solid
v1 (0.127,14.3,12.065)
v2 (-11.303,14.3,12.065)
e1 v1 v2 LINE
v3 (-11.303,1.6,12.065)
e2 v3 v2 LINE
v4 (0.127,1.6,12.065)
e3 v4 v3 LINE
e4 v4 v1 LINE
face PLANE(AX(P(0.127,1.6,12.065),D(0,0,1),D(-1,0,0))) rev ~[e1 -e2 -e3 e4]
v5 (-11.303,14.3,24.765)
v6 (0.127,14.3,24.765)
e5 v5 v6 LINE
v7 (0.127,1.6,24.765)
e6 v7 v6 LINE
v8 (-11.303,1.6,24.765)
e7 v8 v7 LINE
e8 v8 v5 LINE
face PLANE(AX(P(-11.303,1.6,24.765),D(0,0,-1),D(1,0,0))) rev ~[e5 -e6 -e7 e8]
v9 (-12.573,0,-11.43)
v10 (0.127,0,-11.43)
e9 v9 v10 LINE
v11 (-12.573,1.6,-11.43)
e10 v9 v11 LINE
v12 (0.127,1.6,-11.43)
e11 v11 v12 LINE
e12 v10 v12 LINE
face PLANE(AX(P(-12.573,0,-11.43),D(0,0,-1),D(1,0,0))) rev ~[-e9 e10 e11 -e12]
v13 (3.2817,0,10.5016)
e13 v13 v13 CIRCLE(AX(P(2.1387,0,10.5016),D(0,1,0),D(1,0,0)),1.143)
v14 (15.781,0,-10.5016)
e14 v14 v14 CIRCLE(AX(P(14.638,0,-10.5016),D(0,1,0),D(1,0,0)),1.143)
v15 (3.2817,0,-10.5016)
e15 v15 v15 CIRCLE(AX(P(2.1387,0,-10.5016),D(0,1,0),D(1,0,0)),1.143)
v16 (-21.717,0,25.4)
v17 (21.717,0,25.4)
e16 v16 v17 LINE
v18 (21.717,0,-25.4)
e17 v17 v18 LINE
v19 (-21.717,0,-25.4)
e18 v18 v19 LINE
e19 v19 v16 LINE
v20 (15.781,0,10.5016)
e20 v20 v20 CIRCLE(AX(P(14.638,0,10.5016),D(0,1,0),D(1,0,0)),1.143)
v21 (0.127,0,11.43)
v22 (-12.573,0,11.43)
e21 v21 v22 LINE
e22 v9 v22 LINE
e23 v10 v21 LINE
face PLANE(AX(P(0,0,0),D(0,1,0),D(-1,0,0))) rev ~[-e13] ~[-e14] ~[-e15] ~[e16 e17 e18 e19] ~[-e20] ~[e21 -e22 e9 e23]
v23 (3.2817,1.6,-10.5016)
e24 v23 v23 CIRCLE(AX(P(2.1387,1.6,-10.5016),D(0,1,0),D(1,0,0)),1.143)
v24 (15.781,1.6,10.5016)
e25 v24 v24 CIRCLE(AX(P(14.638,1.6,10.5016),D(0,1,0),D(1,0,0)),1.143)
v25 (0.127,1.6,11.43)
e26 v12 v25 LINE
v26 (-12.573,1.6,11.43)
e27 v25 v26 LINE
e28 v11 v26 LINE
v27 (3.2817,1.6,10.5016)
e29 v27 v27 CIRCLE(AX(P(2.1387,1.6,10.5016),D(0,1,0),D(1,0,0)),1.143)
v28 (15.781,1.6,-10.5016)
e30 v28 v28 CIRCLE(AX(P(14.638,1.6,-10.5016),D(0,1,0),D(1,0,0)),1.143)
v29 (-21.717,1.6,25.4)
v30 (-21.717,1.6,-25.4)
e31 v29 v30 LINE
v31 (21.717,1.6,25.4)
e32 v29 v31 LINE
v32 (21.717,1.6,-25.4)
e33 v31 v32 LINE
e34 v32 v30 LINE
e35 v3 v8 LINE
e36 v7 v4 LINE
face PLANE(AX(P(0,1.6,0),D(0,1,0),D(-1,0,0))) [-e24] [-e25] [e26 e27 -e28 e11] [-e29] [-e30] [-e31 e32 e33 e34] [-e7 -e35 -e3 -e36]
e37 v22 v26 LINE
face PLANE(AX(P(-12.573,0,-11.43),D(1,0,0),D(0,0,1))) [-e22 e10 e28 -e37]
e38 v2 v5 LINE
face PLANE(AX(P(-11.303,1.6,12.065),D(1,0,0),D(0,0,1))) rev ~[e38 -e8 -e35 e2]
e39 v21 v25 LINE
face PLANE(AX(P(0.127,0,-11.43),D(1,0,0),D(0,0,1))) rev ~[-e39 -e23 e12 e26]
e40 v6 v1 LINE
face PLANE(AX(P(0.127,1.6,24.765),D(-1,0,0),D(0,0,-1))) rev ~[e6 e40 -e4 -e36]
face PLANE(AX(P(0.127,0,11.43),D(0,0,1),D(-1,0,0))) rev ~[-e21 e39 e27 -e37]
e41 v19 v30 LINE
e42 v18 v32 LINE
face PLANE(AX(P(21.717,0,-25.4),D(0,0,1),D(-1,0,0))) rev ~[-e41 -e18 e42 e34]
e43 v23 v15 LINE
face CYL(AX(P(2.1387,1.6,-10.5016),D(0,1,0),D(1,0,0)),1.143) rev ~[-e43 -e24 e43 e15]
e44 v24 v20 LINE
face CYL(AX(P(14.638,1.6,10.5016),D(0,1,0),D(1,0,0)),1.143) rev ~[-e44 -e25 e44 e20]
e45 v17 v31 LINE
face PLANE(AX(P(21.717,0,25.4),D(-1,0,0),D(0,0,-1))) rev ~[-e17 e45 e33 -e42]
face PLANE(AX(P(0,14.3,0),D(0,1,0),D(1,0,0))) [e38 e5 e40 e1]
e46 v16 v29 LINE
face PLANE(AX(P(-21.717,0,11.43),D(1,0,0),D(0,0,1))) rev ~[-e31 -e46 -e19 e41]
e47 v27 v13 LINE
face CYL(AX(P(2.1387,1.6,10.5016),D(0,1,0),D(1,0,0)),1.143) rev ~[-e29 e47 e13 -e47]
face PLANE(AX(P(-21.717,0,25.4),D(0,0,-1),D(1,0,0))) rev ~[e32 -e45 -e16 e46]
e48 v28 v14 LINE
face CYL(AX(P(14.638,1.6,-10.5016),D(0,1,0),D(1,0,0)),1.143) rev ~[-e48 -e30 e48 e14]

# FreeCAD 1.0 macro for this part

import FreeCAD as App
import Part
import Sketcher
from FreeCAD import Vector
Q = App.Units.Quantity

doc = App.newDocument("Part")
params = doc.addObject("Spreadsheet::Sheet", "Params")
for row, (alias, value) in enumerate([
    ("sketch1_height", "2 in"),
    ("sketch1_width", "0.5 in"),
    ("sketch1_width2", "1.71 in"),
    ("pad1_length", "0.0629921 in"),
    ("sketch2_diameter", "0.09 in"),
    ("sketch3_height", "0.5 in"),
    ("sketch3_width", "0.45 in"),
    ("pad2_length", "0.5 in"),
], start=1):
    params.set(f"A{row}", alias)
    params.set(f"B{row}", "=" + value)
    params.setAlias(f"B{row}", alias)

body = doc.addObject("PartDesign::Body", "Body")

# Sketch on XZ plane
sketch1 = body.newObject("Sketcher::SketchObject", "Sketch")
sketch1.AttachmentSupport = (doc.getObject("XZ_Plane"), [""])
sketch1.MapMode = "FlatFace"
sketch1.addGeometry([
    Part.LineSegment(Vector(-22, -25, 0), Vector(-22, 25, 0)),  # 0
    Part.LineSegment(Vector(-22, 25, 0), Vector(22, 25, 0)),  # 1
    Part.LineSegment(Vector(22, 25, 0), Vector(22, -25, 0)),  # 2
    Part.LineSegment(Vector(22, -25, 0), Vector(-22, -25, 0)),  # 3
    Part.LineSegment(Vector(-13, 11, 0), Vector(-13, -11, 0)),  # 4
    Part.LineSegment(Vector(-13, -11, 0), Vector(0, -11, 0)),  # 5
    Part.LineSegment(Vector(0, -11, 0), Vector(0, 11, 0)),  # 6
    Part.LineSegment(Vector(0, 11, 0), Vector(-13, 11, 0)),  # 7
], False)
sketch1.addConstraint([
    Sketcher.Constraint("Coincident", 0, 2, 1, 1),
    Sketcher.Constraint("Coincident", 1, 2, 2, 1),
    Sketcher.Constraint("Coincident", 2, 2, 3, 1),
    Sketcher.Constraint("Coincident", 3, 2, 0, 1),
    Sketcher.Constraint("Coincident", 4, 2, 5, 1),
    Sketcher.Constraint("Coincident", 5, 2, 6, 1),
    Sketcher.Constraint("Coincident", 6, 2, 7, 1),
    Sketcher.Constraint("Coincident", 7, 2, 4, 1),
    Sketcher.Constraint("Vertical", 0),
    Sketcher.Constraint("Horizontal", 1),
    Sketcher.Constraint("Vertical", 2),
    Sketcher.Constraint("Horizontal", 3),
    Sketcher.Constraint("Vertical", 4),
    Sketcher.Constraint("Horizontal", 5),
    Sketcher.Constraint("Vertical", 6),
    Sketcher.Constraint("Horizontal", 7),
    Sketcher.Constraint("Symmetric", 0, 2, 2, 2, -1, 1),
    Sketcher.Constraint("DistanceY", 0, 1, 0, 2, Q("2 in")),
    Sketcher.Constraint("DistanceX", 5, 1, 5, 2, Q("0.5 in")),
    Sketcher.Constraint("DistanceX", 1, 1, 1, 2, Q("1.71 in")),
    Sketcher.Constraint("DistanceY", 3, 2, 4, 2, Q("0.55 in")),
    Sketcher.Constraint("DistanceX", 5, 2, 2, 2, Q("0.85 in")),
    Sketcher.Constraint("DistanceY", 6, 2, 1, 2, Q("0.55 in")),
])
sketch1.setExpression("Constraints[17]", "Params.sketch1_height")
sketch1.setExpression("Constraints[18]", "Params.sketch1_width")
sketch1.setExpression("Constraints[19]", "Params.sketch1_width2")
pad1 = body.newObject("PartDesign::Pad", "Pad")
pad1.Profile = sketch1
pad1.setExpression("Length", "Params.pad1_length")
pad1.Reversed = True

# Sketch on XZ plane
sketch2 = body.newObject("Sketcher::SketchObject", "Sketch001")
sketch2.AttachmentSupport = (doc.getObject("XZ_Plane"), [""])
sketch2.MapMode = "FlatFace"
sketch2.AttachmentOffset = App.Placement(Vector(0, 0, -0.0629921 * 25.4), App.Rotation())
sketch2.addGeometry([
    Part.Circle(Vector(2.1, 10.5, 0), Vector(0, 0, 1), 1.1),
    Part.Circle(Vector(2.1, -10.5, 0), Vector(0, 0, 1), 1.1),
    Part.Circle(Vector(14.6, 10.5, 0), Vector(0, 0, 1), 1.1),
    Part.Circle(Vector(14.6, -10.5, 0), Vector(0, 0, 1), 1.1),
], False)
sketch2.addConstraint([
    Sketcher.Constraint("Equal", 0, 1),
    Sketcher.Constraint("Equal", 1, 2),
    Sketcher.Constraint("Equal", 2, 3),
    Sketcher.Constraint("Symmetric", 0, 3, 1, 3, -1),
    Sketcher.Constraint("Symmetric", 2, 3, 3, 3, -1),
    Sketcher.Constraint("Horizontal", 0, 3, 2, 3),
    Sketcher.Constraint("Diameter", 0, Q("0.09 in")),
    Sketcher.Constraint("DistanceY", 1, 3, 0, 3, Q("0.8269 in")),
    Sketcher.Constraint("DistanceX", 0, 3, 2, 3, Q("0.4921 in")),
    Sketcher.Constraint("DistanceX", -1, 1, 0, 3, Q("0.0842 in")),
])
sketch2.setExpression("Constraints[6]", "Params.sketch2_diameter")
pocket1 = body.newObject("PartDesign::Pocket", "Pocket")
pocket1.Profile = sketch2
pocket1.Type = "ThroughAll"
pocket1.Reversed = True

# Sketch on XZ plane
sketch3 = body.newObject("Sketcher::SketchObject", "Sketch002")
sketch3.AttachmentSupport = (doc.getObject("XZ_Plane"), [""])
sketch3.MapMode = "FlatFace"
sketch3.AttachmentOffset = App.Placement(Vector(0, 0, -0.0629921 * 25.4), App.Rotation())
sketch3.addGeometry([
    Part.LineSegment(Vector(-11, 12, 0), Vector(-11, 25, 0)),
    Part.LineSegment(Vector(-11, 25, 0), Vector(0, 25, 0)),
    Part.LineSegment(Vector(0, 25, 0), Vector(0, 12, 0)),
    Part.LineSegment(Vector(0, 12, 0), Vector(-11, 12, 0)),
], False)
sketch3.addConstraint([
    Sketcher.Constraint("Coincident", 0, 2, 1, 1),
    Sketcher.Constraint("Coincident", 1, 2, 2, 1),
    Sketcher.Constraint("Coincident", 2, 2, 3, 1),
    Sketcher.Constraint("Coincident", 3, 2, 0, 1),
    Sketcher.Constraint("Vertical", 0),
    Sketcher.Constraint("Horizontal", 1),
    Sketcher.Constraint("Vertical", 2),
    Sketcher.Constraint("Horizontal", 3),
    Sketcher.Constraint("DistanceY", 0, 1, 0, 2, Q("0.5 in")),
    Sketcher.Constraint("DistanceX", 1, 1, 1, 2, Q("0.45 in")),
    Sketcher.Constraint("DistanceX", 0, 2, -1, 1, Q("0.445 in")),
    Sketcher.Constraint("DistanceY", -1, 1, 0, 2, Q("0.975 in")),
])
sketch3.setExpression("Constraints[8]", "Params.sketch3_height")
sketch3.setExpression("Constraints[9]", "Params.sketch3_width")
pad2 = body.newObject("PartDesign::Pad", "Pad001")
pad2.Profile = sketch3
pad2.setExpression("Length", "Params.pad2_length")
pad2.Reversed = True

doc.recompute()
